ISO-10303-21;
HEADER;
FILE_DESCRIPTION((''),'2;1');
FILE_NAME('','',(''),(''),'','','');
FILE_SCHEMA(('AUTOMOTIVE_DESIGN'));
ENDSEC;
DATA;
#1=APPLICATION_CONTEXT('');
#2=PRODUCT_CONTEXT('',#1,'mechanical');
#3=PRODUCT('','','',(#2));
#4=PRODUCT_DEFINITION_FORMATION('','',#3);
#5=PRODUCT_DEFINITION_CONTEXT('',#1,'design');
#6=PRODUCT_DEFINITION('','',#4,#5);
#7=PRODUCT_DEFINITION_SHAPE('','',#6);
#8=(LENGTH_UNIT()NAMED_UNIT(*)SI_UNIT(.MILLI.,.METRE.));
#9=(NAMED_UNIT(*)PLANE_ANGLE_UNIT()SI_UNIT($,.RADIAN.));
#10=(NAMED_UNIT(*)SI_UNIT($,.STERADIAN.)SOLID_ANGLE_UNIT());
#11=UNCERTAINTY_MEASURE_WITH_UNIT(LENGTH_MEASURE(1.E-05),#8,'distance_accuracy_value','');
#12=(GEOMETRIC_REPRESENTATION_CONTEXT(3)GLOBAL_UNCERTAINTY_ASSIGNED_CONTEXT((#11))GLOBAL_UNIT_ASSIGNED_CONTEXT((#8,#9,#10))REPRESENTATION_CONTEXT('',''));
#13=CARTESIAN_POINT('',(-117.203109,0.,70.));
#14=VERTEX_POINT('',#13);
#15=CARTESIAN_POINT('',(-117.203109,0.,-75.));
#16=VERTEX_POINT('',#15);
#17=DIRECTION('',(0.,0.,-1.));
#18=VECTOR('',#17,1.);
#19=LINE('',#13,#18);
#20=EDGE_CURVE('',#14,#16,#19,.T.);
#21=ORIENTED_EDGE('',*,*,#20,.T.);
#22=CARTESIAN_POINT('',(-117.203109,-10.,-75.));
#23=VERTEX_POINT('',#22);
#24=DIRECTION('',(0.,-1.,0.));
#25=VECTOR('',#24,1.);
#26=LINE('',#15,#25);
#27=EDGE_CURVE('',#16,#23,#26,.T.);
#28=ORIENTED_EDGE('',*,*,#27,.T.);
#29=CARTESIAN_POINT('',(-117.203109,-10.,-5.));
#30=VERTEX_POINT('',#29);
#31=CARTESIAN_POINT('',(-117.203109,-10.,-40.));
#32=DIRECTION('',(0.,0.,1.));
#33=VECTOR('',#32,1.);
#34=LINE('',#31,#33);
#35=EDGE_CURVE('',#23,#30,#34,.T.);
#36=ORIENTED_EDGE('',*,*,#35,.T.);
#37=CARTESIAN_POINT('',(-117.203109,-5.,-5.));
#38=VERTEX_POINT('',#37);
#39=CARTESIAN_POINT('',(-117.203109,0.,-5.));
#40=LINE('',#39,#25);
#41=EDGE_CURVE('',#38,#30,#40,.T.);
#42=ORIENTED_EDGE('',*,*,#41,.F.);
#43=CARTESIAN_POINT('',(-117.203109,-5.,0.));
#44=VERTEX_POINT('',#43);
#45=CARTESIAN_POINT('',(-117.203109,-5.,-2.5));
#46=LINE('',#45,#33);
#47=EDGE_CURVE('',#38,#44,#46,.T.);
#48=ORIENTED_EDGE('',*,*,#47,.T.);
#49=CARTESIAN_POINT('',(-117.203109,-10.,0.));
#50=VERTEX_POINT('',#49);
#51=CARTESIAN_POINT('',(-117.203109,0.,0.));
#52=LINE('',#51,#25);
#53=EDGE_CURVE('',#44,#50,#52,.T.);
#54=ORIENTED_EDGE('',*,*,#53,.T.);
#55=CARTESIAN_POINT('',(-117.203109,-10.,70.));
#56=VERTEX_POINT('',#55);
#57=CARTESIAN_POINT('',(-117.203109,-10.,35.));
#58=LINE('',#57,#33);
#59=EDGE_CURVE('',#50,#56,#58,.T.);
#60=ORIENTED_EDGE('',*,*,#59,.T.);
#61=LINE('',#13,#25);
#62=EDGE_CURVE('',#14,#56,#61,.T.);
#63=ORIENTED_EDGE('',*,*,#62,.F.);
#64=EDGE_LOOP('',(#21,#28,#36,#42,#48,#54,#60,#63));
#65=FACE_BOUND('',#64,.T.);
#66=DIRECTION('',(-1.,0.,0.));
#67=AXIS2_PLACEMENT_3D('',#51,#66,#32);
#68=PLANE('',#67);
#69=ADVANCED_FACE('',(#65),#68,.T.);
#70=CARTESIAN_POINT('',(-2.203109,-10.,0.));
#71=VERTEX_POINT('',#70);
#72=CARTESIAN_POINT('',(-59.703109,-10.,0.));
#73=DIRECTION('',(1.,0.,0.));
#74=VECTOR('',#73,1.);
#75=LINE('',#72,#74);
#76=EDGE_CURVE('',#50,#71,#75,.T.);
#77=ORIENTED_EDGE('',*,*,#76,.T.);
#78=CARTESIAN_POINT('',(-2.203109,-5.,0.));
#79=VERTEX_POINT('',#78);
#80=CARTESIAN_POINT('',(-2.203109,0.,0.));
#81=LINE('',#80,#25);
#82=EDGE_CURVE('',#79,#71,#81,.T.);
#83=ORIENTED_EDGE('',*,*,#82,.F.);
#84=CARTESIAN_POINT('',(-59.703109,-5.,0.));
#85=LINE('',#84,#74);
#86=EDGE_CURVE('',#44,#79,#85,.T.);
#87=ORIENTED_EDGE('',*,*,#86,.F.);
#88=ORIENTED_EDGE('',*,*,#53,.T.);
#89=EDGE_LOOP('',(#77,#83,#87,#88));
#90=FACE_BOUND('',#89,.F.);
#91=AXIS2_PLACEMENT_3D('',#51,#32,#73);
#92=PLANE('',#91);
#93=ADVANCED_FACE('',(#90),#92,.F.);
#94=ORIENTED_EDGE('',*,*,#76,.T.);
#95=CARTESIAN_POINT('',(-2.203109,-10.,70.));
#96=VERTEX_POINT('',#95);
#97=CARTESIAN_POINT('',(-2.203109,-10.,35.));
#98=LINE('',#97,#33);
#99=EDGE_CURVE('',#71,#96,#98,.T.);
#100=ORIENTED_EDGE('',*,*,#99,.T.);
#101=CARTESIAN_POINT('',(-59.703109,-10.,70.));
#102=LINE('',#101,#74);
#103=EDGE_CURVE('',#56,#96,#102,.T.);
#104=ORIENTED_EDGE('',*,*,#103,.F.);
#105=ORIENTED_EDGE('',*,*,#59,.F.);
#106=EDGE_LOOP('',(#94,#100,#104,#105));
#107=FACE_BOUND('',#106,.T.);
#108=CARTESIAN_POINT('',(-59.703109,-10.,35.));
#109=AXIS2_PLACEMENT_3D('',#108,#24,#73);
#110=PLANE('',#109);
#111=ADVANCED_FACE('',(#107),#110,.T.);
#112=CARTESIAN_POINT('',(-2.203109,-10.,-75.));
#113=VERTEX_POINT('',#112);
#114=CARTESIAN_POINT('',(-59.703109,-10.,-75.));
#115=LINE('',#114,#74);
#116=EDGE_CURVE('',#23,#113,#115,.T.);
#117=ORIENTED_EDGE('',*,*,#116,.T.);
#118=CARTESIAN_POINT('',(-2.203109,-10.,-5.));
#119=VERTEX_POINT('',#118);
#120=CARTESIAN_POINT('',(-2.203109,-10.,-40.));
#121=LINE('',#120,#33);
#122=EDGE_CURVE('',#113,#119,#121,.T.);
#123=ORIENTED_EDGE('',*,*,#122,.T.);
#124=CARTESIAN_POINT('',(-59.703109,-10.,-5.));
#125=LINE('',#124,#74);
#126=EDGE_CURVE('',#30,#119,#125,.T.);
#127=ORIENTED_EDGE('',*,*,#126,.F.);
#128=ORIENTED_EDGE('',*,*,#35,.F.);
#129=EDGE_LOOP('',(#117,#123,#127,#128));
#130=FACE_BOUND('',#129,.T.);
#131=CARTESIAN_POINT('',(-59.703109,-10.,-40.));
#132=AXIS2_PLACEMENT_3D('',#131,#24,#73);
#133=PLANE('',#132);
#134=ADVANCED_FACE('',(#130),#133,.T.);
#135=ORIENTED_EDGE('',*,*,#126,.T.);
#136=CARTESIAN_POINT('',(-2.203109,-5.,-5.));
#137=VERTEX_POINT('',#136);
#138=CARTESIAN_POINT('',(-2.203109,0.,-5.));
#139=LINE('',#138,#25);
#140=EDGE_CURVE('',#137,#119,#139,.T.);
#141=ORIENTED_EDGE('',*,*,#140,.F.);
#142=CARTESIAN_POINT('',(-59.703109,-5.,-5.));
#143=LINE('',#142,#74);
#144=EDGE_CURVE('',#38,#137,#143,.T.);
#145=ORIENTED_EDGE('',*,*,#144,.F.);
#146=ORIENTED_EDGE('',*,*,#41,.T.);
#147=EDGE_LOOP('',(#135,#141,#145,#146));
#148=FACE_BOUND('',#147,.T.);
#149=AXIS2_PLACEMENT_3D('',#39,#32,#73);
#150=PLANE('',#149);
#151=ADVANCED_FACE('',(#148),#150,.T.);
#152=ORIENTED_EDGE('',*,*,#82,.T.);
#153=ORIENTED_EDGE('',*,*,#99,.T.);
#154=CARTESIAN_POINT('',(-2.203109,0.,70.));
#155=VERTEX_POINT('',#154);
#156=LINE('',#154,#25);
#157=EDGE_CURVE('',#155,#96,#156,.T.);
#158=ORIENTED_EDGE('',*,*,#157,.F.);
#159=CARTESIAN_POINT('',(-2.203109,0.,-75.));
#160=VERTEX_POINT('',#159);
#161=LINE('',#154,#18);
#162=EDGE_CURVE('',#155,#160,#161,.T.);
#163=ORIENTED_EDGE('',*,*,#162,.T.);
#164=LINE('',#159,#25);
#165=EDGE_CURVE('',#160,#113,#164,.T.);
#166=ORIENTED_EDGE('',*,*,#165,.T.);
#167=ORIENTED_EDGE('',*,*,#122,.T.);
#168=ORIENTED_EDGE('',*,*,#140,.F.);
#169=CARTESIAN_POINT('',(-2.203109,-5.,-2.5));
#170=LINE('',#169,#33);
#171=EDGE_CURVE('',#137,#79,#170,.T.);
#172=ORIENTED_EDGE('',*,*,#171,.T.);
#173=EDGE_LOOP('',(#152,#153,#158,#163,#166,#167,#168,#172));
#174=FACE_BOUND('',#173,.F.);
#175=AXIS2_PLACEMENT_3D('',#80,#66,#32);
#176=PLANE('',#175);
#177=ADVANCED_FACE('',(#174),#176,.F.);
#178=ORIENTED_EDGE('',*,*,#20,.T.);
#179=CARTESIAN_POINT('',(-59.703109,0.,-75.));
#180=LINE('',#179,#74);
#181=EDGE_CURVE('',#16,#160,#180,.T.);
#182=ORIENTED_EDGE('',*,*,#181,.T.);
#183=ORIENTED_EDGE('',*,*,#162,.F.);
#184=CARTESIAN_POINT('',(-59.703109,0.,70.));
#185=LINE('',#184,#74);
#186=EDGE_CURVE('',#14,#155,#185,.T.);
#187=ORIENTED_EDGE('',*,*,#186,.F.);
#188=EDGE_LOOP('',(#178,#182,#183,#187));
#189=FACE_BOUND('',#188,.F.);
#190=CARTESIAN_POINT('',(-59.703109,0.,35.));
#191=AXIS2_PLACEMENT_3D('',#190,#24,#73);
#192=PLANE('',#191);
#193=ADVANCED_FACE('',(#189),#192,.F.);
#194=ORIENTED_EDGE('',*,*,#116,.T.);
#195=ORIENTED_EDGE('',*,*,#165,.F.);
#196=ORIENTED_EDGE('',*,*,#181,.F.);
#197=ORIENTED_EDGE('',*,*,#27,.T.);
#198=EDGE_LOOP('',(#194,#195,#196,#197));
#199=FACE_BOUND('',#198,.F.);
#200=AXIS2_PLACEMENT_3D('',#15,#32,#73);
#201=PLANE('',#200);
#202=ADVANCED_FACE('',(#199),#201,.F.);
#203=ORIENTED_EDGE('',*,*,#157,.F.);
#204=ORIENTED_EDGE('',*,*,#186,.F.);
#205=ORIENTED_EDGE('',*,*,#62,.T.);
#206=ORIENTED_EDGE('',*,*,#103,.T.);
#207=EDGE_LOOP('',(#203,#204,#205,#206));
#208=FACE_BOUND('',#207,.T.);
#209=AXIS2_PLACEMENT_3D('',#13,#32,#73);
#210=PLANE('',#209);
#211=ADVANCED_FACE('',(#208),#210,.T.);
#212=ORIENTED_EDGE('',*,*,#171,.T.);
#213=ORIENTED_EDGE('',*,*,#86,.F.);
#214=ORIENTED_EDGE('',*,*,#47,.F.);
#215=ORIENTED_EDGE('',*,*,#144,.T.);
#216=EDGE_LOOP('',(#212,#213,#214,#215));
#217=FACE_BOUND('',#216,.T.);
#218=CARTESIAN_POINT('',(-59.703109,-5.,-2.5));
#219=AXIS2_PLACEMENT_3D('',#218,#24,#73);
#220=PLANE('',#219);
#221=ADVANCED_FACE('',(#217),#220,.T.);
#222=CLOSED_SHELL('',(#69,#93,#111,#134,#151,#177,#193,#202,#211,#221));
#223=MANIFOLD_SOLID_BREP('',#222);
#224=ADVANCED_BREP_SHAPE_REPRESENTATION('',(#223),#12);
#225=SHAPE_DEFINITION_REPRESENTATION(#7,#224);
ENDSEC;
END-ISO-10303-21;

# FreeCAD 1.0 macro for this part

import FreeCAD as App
import Part
import Sketcher

V = App.Vector


def add_polygon(sketch, points):
    """Adds a closed chain of lines whose ends are joined by coincident constraints."""
    first, n = sketch.GeometryCount, len(points)
    for a, b in zip(points, points[1:] + points[:1]):
        sketch.addGeometry(Part.LineSegment(App.Vector(*a, 0), App.Vector(*b, 0)), False)
    for i in range(n):
        sketch.addConstraint(Sketcher.Constraint("Coincident", first + i, 2, first + (i + 1) % n, 1))

doc = App.newDocument("Part")
body = doc.addObject("PartDesign::Body", "Body")

# Sketch on XZ plane
sketch1 = body.newObject("Sketcher::SketchObject", "Sketch")
sketch1.AttachmentSupport = (doc.getObject("XZ_Plane"), [""])
sketch1.MapMode = "FlatFace"
add_polygon(sketch1, [(-117, 0), (-117, -5), (-2, -5), (-2, 0)])  # lines 0-3
sketch1.addConstraint(Sketcher.Constraint("Vertical", 0))
sketch1.addConstraint(Sketcher.Constraint("Horizontal", 1))
sketch1.addConstraint(Sketcher.Constraint("Vertical", 2))
sketch1.addConstraint(Sketcher.Constraint("Horizontal", 3))
sketch1.addConstraint(Sketcher.Constraint("PointOnObject", 2, 2, -1))
sketch1.addConstraint(Sketcher.Constraint("DistanceX", 1, 1, 1, 2, 115.0))
sketch1.addConstraint(Sketcher.Constraint("DistanceY", 0, 2, 0, 1, 5.0))
sketch1.addConstraint(Sketcher.Constraint("DistanceX", 0, 2, -1, 1, 117.203109))
pad1 = body.newObject("PartDesign::Pad", "Pad")
pad1.Profile = sketch1
pad1.Length = 5

# Sketch on XZ plane
sketch2 = body.newObject("Sketcher::SketchObject", "Sketch001")
sketch2.AttachmentSupport = (doc.getObject("XZ_Plane"), [""])
sketch2.MapMode = "FlatFace"
add_polygon(sketch2, [(-117, 70), (-117, 0), (-2, 0), (-2, 70)])  # lines 0-3
add_polygon(sketch2, [(-117, -5), (-117, -75), (-2, -75), (-2, -5)])  # lines 4-7
sketch2.addConstraint(Sketcher.Constraint("Vertical", 0))
sketch2.addConstraint(Sketcher.Constraint("Horizontal", 1))
sketch2.addConstraint(Sketcher.Constraint("Vertical", 2))
sketch2.addConstraint(Sketcher.Constraint("Horizontal", 3))
sketch2.addConstraint(Sketcher.Constraint("Vertical", 4))
sketch2.addConstraint(Sketcher.Constraint("Horizontal", 5))
sketch2.addConstraint(Sketcher.Constraint("Vertical", 6))
sketch2.addConstraint(Sketcher.Constraint("Horizontal", 7))
sketch2.addConstraint(Sketcher.Constraint("PointOnObject", 0, 2, -1))
sketch2.addConstraint(Sketcher.Constraint("Vertical", 3, 2, 4, 2))
sketch2.addConstraint(Sketcher.Constraint("Vertical", 2, 2, 5, 2))
sketch2.addConstraint(Sketcher.Constraint("Equal", 2, 4))
sketch2.addConstraint(Sketcher.Constraint("DistanceX", 1, 1, 1, 2, 115.0))
sketch2.addConstraint(Sketcher.Constraint("DistanceY", 0, 2, 0, 1, 70.0))
sketch2.addConstraint(Sketcher.Constraint("DistanceY", 4, 2, -1, 1, 75.0))
sketch2.addConstraint(Sketcher.Constraint("DistanceX", 0, 2, -1, 1, 117.203109))
pad2 = body.newObject("PartDesign::Pad", "Pad001")
pad2.Profile = sketch2
pad2.Length = 10

doc.recompute()
